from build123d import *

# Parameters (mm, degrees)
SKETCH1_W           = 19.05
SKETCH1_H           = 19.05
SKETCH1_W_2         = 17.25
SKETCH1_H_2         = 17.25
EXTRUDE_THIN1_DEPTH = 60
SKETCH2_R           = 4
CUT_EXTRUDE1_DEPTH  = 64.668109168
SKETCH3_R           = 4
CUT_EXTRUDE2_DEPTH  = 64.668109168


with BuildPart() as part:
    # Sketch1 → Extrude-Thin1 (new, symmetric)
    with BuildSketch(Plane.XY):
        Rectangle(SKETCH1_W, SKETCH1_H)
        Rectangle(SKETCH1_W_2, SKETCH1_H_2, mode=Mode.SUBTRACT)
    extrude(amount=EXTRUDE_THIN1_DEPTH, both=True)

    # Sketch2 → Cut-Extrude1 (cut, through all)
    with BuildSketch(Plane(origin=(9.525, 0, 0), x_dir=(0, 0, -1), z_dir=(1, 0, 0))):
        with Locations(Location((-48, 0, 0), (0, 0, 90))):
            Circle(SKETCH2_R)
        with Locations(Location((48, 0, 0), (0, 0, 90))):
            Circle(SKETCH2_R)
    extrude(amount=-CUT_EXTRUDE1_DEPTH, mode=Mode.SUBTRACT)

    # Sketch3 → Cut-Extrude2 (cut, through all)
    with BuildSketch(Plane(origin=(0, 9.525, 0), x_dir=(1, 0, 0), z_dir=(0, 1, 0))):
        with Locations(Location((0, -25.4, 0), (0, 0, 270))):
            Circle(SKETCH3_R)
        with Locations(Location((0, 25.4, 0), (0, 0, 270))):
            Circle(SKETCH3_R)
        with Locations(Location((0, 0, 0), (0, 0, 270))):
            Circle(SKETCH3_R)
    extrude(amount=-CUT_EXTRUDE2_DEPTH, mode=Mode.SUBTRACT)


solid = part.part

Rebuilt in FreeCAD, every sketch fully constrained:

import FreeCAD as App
import Part
import Sketcher

V = App.Vector
Q = App.Units.Quantity

doc = App.newDocument("Part")
body = doc.addObject("PartDesign::Body", "Body")

sketch1 = body.newObject("Sketcher::SketchObject", "Sketch")
sketch1.AttachmentSupport = (doc.getObject("XY_Plane"), [""])
sketch1.MapMode = "FlatFace"
sketch1.addGeometry(Part.LineSegment(V(-9.525, 9.525, 0), V(-9.525, -9.525, 0)), False)
sketch1.addGeometry(Part.LineSegment(V(-9.525, -9.525, 0), V(9.525, -9.525, 0)), False)
sketch1.addGeometry(Part.LineSegment(V(9.525, -9.525, 0), V(9.525, 9.525, 0)), False)
sketch1.addGeometry(Part.LineSegment(V(9.525, 9.525, 0), V(-9.525, 9.525, 0)), False)
sketch1.addGeometry(Part.LineSegment(V(8.625, -8.625, 0), V(-8.625, -8.625, 0)), False)
sketch1.addGeometry(Part.LineSegment(V(-8.625, -8.625, 0), V(-8.625, 8.625, 0)), False)
sketch1.addGeometry(Part.LineSegment(V(-8.625, 8.625, 0), V(8.625, 8.625, 0)), False)
sketch1.addGeometry(Part.LineSegment(V(8.625, 8.625, 0), V(8.625, -8.625, 0)), False)
sketch1.addConstraint(Sketcher.Constraint("Coincident", 0, 2, 1, 1))
sketch1.addConstraint(Sketcher.Constraint("Coincident", 1, 2, 2, 1))
sketch1.addConstraint(Sketcher.Constraint("Coincident", 2, 2, 3, 1))
sketch1.addConstraint(Sketcher.Constraint("Coincident", 3, 2, 0, 1))
sketch1.addConstraint(Sketcher.Constraint("Coincident", 4, 2, 5, 1))
sketch1.addConstraint(Sketcher.Constraint("Coincident", 5, 2, 6, 1))
sketch1.addConstraint(Sketcher.Constraint("Coincident", 6, 2, 7, 1))
sketch1.addConstraint(Sketcher.Constraint("Coincident", 7, 2, 4, 1))
sketch1.addConstraint(Sketcher.Constraint("Vertical", 0))
sketch1.addConstraint(Sketcher.Constraint("Horizontal", 1))
sketch1.addConstraint(Sketcher.Constraint("Vertical", 2))
sketch1.addConstraint(Sketcher.Constraint("Horizontal", 3))
sketch1.addConstraint(Sketcher.Constraint("Horizontal", 4))
sketch1.addConstraint(Sketcher.Constraint("Vertical", 5))
sketch1.addConstraint(Sketcher.Constraint("Horizontal", 6))
sketch1.addConstraint(Sketcher.Constraint("Vertical", 7))
sketch1.addConstraint(Sketcher.Constraint("Symmetric", 0, 2, 2, 2, -1, 1))
sketch1.addConstraint(Sketcher.Constraint("Symmetric", 4, 2, 6, 2, -1, 1))
sketch1.addConstraint(Sketcher.Constraint("Equal", 3, 0))
sketch1.addConstraint(Sketcher.Constraint("Equal", 6, 5))
sketch1.addConstraint(Sketcher.Constraint("DistanceX", 1, 1, 1, 2, Q("19.05 mm")))
sketch1.addConstraint(Sketcher.Constraint("DistanceX", 4, 2, 4, 1, Q("17.25 mm")))
pad1 = body.newObject("PartDesign::Pad", "Pad")
pad1.Profile = sketch1
pad1.Length = 120
pad1.Midplane = True

sketch2 = body.newObject("Sketcher::SketchObject", "Sketch001")
sketch2.AttachmentSupport = (doc.getObject("YZ_Plane"), [""])
sketch2.MapMode = "FlatFace"
sketch2.AttachmentOffset = App.Placement(V(0, 0, 9.525), App.Rotation())
sketch2.addGeometry(Part.Circle(V(0, 48, 0), V(0, 0, 1), 4), False)
sketch2.addGeometry(Part.Circle(V(0, -48, 0), V(0, 0, 1), 4), False)
sketch2.addConstraint(Sketcher.Constraint("Equal", 0, 1))
sketch2.addConstraint(Sketcher.Constraint("Symmetric", 0, 3, 1, 3, -1, 1))
sketch2.addConstraint(Sketcher.Constraint("PointOnObject", 0, 3, -2))
sketch2.addConstraint(Sketcher.Constraint("Diameter", 0, Q("8 mm")))
sketch2.addConstraint(Sketcher.Constraint("DistanceY", -1, 1, 0, 3, Q("48 mm")))
pocket1 = body.newObject("PartDesign::Pocket", "Pocket")
pocket1.Profile = sketch2
pocket1.Type = "ThroughAll"

sketch3 = body.newObject("Sketcher::SketchObject", "Sketch002")
sketch3.AttachmentSupport = (doc.getObject("XZ_Plane"), [""])
sketch3.MapMode = "FlatFace"
sketch3.AttachmentOffset = App.Placement(V(0, 0, -9.525), App.Rotation())
sketch3.addGeometry(Part.Circle(V(0, 25.4, 0), V(0, 0, 1), 4), False)
sketch3.addGeometry(Part.Circle(V(0, -25.4, 0), V(0, 0, 1), 4), False)
sketch3.addGeometry(Part.Circle(V(0, 0, 0), V(0, 0, 1), 4), False)
sketch3.addConstraint(Sketcher.Constraint("Coincident", 2, 3, -1, 1))
sketch3.addConstraint(Sketcher.Constraint("Equal", 0, 1))
sketch3.addConstraint(Sketcher.Constraint("Equal", 1, 2))
sketch3.addConstraint(Sketcher.Constraint("Symmetric", 0, 3, 1, 3, -1, 1))
sketch3.addConstraint(Sketcher.Constraint("PointOnObject", 0, 3, -2))
sketch3.addConstraint(Sketcher.Constraint("Diameter", 0, Q("8 mm")))
sketch3.addConstraint(Sketcher.Constraint("DistanceY", -1, 1, 0, 3, Q("25.4 mm")))
pocket2 = body.newObject("PartDesign::Pocket", "Pocket001")
pocket2.Profile = sketch3
pocket2.Type = "ThroughAll"
pocket2.Reversed = True

doc.recompute()
